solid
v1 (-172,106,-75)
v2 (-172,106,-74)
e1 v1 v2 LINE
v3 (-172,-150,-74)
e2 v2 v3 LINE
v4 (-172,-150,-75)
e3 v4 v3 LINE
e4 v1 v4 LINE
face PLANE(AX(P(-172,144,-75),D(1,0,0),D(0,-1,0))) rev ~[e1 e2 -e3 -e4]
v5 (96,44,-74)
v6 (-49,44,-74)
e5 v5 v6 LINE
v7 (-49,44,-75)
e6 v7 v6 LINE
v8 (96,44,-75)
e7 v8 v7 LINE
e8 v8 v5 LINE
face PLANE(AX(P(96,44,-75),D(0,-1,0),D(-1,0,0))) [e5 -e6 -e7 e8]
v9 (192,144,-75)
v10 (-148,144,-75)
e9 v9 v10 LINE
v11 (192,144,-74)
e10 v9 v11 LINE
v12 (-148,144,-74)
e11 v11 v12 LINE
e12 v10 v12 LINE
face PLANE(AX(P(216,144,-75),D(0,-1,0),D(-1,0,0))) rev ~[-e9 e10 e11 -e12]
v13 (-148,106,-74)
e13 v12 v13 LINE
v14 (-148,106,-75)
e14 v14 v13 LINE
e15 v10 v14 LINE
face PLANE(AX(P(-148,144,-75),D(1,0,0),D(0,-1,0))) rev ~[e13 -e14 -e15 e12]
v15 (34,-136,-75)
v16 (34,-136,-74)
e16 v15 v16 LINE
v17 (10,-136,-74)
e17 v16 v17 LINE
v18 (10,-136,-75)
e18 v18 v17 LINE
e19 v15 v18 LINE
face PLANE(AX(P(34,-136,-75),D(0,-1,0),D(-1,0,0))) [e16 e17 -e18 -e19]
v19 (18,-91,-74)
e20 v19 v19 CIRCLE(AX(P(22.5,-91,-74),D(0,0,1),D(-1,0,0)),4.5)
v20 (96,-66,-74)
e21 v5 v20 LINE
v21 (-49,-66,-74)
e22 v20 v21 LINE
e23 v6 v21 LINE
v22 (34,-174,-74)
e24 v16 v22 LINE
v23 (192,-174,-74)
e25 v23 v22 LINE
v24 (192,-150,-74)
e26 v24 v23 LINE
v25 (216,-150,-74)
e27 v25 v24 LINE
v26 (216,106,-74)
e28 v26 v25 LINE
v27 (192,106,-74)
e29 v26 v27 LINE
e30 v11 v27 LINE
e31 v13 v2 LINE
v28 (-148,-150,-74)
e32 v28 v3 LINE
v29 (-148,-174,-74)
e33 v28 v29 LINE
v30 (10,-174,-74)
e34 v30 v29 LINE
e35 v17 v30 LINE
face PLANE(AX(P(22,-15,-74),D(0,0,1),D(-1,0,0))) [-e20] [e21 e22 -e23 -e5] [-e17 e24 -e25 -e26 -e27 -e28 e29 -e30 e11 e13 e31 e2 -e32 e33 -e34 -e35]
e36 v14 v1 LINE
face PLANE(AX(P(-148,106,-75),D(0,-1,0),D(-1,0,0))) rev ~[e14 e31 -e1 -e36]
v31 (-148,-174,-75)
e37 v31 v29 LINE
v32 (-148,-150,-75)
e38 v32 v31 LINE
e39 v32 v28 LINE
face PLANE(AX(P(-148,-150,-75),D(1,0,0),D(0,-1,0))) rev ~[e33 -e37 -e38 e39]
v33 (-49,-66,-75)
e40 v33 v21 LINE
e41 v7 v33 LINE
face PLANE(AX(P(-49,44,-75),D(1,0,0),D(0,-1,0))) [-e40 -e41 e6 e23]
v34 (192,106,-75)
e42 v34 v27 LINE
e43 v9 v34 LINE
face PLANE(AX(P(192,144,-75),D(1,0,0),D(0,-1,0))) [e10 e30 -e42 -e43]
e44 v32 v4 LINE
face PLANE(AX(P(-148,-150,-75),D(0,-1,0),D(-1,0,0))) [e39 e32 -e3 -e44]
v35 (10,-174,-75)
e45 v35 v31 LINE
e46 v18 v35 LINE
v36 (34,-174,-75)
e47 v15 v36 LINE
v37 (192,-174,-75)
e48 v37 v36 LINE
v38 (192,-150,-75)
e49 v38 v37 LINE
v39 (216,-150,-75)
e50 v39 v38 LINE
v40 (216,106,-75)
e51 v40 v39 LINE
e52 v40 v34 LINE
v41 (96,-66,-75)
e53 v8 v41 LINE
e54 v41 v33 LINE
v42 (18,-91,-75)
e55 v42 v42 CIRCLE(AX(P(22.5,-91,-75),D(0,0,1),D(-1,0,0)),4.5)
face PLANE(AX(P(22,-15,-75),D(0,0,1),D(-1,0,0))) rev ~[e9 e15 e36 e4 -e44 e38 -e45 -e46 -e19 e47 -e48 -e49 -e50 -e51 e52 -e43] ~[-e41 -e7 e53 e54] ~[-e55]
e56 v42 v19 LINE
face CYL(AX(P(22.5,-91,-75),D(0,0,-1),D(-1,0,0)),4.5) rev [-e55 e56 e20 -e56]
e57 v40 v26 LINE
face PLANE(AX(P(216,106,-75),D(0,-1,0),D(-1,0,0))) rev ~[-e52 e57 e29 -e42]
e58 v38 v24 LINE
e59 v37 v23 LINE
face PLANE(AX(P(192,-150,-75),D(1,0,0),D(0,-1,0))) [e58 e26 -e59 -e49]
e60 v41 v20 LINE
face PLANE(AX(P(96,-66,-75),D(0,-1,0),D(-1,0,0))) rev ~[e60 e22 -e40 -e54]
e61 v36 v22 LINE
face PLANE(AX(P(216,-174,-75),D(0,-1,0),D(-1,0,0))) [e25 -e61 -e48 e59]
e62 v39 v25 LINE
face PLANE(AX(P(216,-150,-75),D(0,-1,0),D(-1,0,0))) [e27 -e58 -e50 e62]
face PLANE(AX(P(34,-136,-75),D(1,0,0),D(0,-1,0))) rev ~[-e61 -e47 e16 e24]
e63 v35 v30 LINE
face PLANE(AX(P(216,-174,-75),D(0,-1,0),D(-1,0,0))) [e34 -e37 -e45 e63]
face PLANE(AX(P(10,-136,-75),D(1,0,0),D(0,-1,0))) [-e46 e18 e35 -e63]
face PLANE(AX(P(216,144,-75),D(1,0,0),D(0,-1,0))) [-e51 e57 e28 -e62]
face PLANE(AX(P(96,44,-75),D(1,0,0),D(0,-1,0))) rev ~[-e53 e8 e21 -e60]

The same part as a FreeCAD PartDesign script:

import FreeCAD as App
import Part
import Sketcher

V = App.Vector


def add_polygon(sketch, points):
    """Adds a closed chain of lines whose ends are joined by coincident constraints."""
    first, n = sketch.GeometryCount, len(points)
    for a, b in zip(points, points[1:] + points[:1]):
        sketch.addGeometry(Part.LineSegment(App.Vector(*a, 0), App.Vector(*b, 0)), False)
    for i in range(n):
        sketch.addConstraint(Sketcher.Constraint("Coincident", first + i, 2, first + (i + 1) % n, 1))

doc = App.newDocument("Part")
body = doc.addObject("PartDesign::Body", "Body")

# Sketch on XY plane
sketch1 = body.newObject("Sketcher::SketchObject", "Sketch")
sketch1.AttachmentSupport = (doc.getObject("XY_Plane"), [""])
sketch1.MapMode = "FlatFace"
add_polygon(sketch1, [(120, 210), (120, 100), (265, 100), (265, 210)])  # lines 0-3
sketch1.addConstraint(Sketcher.Constraint("Vertical", 0))
sketch1.addConstraint(Sketcher.Constraint("Horizontal", 1))
sketch1.addConstraint(Sketcher.Constraint("Vertical", 2))
sketch1.addConstraint(Sketcher.Constraint("Horizontal", 3))
sketch1.addConstraint(Sketcher.Constraint("DistanceX", 1, 1, 1, 2, 145.0))
sketch1.addConstraint(Sketcher.Constraint("DistanceY", 0, 2, 0, 1, 110.0))
sketch1.addConstraint(Sketcher.Constraint("DistanceX", -1, 1, 0, 2, 120.0))
sketch1.addConstraint(Sketcher.Constraint("DistanceY", -1, 1, 0, 2, 100.0))
pad1 = body.newObject("PartDesign::Pad", "Pad")
pad1.Profile = sketch1
pad1.Length = 1
body2 = doc.addObject("PartDesign::Body", "Body001")

# Sketch on XY plane
sketch2 = body2.newObject("Sketcher::SketchObject", "Sketch001")
sketch2.AttachmentSupport = (doc.getObject("XY_Plane001"), [""])
sketch2.MapMode = "FlatFace"
add_polygon(sketch2, [(182, 318), (182, 280), (206, 280), (206, 318)])  # lines 0-3
sketch2.addConstraint(Sketcher.Constraint("Vertical", 0))
sketch2.addConstraint(Sketcher.Constraint("Horizontal", 1))
sketch2.addConstraint(Sketcher.Constraint("Vertical", 2))
sketch2.addConstraint(Sketcher.Constraint("Horizontal", 3))
sketch2.addConstraint(Sketcher.Constraint("DistanceX", 1, 1, 1, 2, 24.0))
sketch2.addConstraint(Sketcher.Constraint("DistanceY", 0, 2, 0, 1, 38.0))
sketch2.addConstraint(Sketcher.Constraint("DistanceX", -1, 1, 0, 2, 182.0))
sketch2.addConstraint(Sketcher.Constraint("DistanceY", -1, 1, 0, 2, 280.0))
pad2 = body2.newObject("PartDesign::Pad", "Pad001")
pad2.Profile = sketch2
pad2.Length = 1
body3 = doc.addObject("PartDesign::Body", "Body002")

# Sketch on XY plane
sketch3 = body3.newObject("Sketcher::SketchObject", "Sketch002")
sketch3.AttachmentSupport = (doc.getObject("XY_Plane002"), [""])
sketch3.MapMode = "FlatFace"
sketch3.addGeometry(Part.Circle(V(193.5, 235, 0), V(0, 0, 1), 4.5), False)
sketch3.addConstraint(Sketcher.Constraint("Diameter", 0, 9.0))
sketch3.addConstraint(Sketcher.Constraint("DistanceY", -1, 1, 0, 3, 235.0))
sketch3.addConstraint(Sketcher.Constraint("DistanceX", -1, 1, 0, 3, 193.5))
pad3 = body3.newObject("PartDesign::Pad", "Pad002")
pad3.Profile = sketch3
pad3.Length = 1
body4 = doc.addObject("PartDesign::Body", "Body003")

# Sketch on XY plane
sketch4 = body4.newObject("Sketcher::SketchObject", "Sketch003")
sketch4.AttachmentSupport = (doc.getObject("XY_Plane003"), [""])
sketch4.MapMode = "FlatFace"
add_polygon(sketch4, [(364, 38), (364, 0), (388, 0), (388, 38)])  # lines 0-3
sketch4.addConstraint(Sketcher.Constraint("Vertical", 0))
sketch4.addConstraint(Sketcher.Constraint("Horizontal", 1))
sketch4.addConstraint(Sketcher.Constraint("Vertical", 2))
sketch4.addConstraint(Sketcher.Constraint("Horizontal", 3))
sketch4.addConstraint(Sketcher.Constraint("PointOnObject", 0, 2, -1))
sketch4.addConstraint(Sketcher.Constraint("DistanceX", 1, 1, 1, 2, 24.0))
sketch4.addConstraint(Sketcher.Constraint("DistanceY", 0, 2, 0, 1, 38.0))
sketch4.addConstraint(Sketcher.Constraint("DistanceX", -1, 1, 0, 2, 364.0))
pad4 = body4.newObject("PartDesign::Pad", "Pad003")
pad4.Profile = sketch4
pad4.Length = 1
body5 = doc.addObject("PartDesign::Body", "Body004")

# Sketch on XY plane
sketch5 = body5.newObject("Sketcher::SketchObject", "Sketch004")
sketch5.AttachmentSupport = (doc.getObject("XY_Plane004"), [""])
sketch5.MapMode = "FlatFace"
add_polygon(sketch5, [(0, 318), (0, 294), (24, 294), (24, 318)])  # lines 0-3
sketch5.addConstraint(Sketcher.Constraint("Vertical", 0))
sketch5.addConstraint(Sketcher.Constraint("Horizontal", 1))
sketch5.addConstraint(Sketcher.Constraint("Vertical", 2))
sketch5.addConstraint(Sketcher.Constraint("Horizontal", 3))
sketch5.addConstraint(Sketcher.Constraint("PointOnObject", 0, 2, -2))
sketch5.addConstraint(Sketcher.Constraint("Equal", 3, 0))
sketch5.addConstraint(Sketcher.Constraint("DistanceX", 1, 1, 1, 2, 24.0))
sketch5.addConstraint(Sketcher.Constraint("DistanceY", -1, 1, 0, 2, 294.0))
pad5 = body5.newObject("PartDesign::Pad", "Pad004")
pad5.Profile = sketch5
pad5.Length = 1
body6 = doc.addObject("PartDesign::Body", "Body005")

# Sketch on XY plane
sketch6 = body6.newObject("Sketcher::SketchObject", "Sketch005")
sketch6.AttachmentSupport = (doc.getObject("XY_Plane005"), [""])
sketch6.MapMode = "FlatFace"
add_polygon(sketch6, [(364, 318), (364, 294), (388, 294), (388, 318)])  # lines 0-3
sketch6.addConstraint(Sketcher.Constraint("Vertical", 0))
sketch6.addConstraint(Sketcher.Constraint("Horizontal", 1))
sketch6.addConstraint(Sketcher.Constraint("Vertical", 2))
sketch6.addConstraint(Sketcher.Constraint("Horizontal", 3))
sketch6.addConstraint(Sketcher.Constraint("Equal", 3, 0))
sketch6.addConstraint(Sketcher.Constraint("DistanceX", 1, 1, 1, 2, 24.0))
sketch6.addConstraint(Sketcher.Constraint("DistanceX", -1, 1, 0, 2, 364.0))
sketch6.addConstraint(Sketcher.Constraint("DistanceY", -1, 1, 0, 2, 294.0))
pad6 = body6.newObject("PartDesign::Pad", "Pad005")
pad6.Profile = sketch6
pad6.Length = 1
body7 = doc.addObject("PartDesign::Body", "Body006")
body7.AllowCompound = True

# Sketch on XY plane
sketch7 = body7.newObject("Sketcher::SketchObject", "Sketch006")
sketch7.AttachmentSupport = (doc.getObject("XY_Plane006"), [""])
sketch7.MapMode = "FlatFace"
add_polygon(sketch7, [(0, 38), (0, 0), (24, 0), (24, 38)])  # lines 0-3
sketch7.addConstraint(Sketcher.Constraint("Vertical", 0))
sketch7.addConstraint(Sketcher.Constraint("Horizontal", 1))
sketch7.addConstraint(Sketcher.Constraint("Vertical", 2))
sketch7.addConstraint(Sketcher.Constraint("Horizontal", 3))
sketch7.addConstraint(Sketcher.Constraint("Coincident", 0, 2, -1, 1))
sketch7.addConstraint(Sketcher.Constraint("DistanceX", 1, 1, 1, 2, 24.0))
sketch7.addConstraint(Sketcher.Constraint("DistanceY", 0, 2, 0, 1, 38.0))
pad7 = body7.newObject("PartDesign::Pad", "Pad006")
pad7.Profile = sketch7
pad7.Length = 1
doc.recompute()

boolean = body7.newObject("PartDesign::Boolean", "Boolean")
boolean.Type = "Fuse"
boolean.addObjects([body4])
doc.recompute()

boolean2 = body7.newObject("PartDesign::Boolean", "Boolean001")
boolean2.Type = "Fuse"
boolean2.addObjects([body5])
doc.recompute()

boolean3 = body7.newObject("PartDesign::Boolean", "Boolean002")
boolean3.Type = "Fuse"
boolean3.addObjects([body6])
doc.recompute()

boolean4 = body7.newObject("PartDesign::Boolean", "Boolean003")
boolean4.Type = "Fuse"
boolean4.addObjects([body])
doc.recompute()

boolean5 = body7.newObject("PartDesign::Boolean", "Boolean004")
boolean5.Type = "Fuse"
boolean5.addObjects([body2])
doc.recompute()

boolean6 = body7.newObject("PartDesign::Boolean", "Boolean005")
boolean6.Type = "Fuse"
boolean6.addObjects([body3])
body8 = doc.addObject("PartDesign::Body", "Body007")

# Sketch on XY plane
sketch8 = body8.newObject("Sketcher::SketchObject", "Sketch007")
sketch8.AttachmentSupport = (doc.getObject("XY_Plane007"), [""])
sketch8.MapMode = "FlatFace"
add_polygon(sketch8, [(0, 318), (0, 0), (388, 0), (388, 318)])  # lines 0-3
sketch8.addConstraint(Sketcher.Constraint("Vertical", 0))
sketch8.addConstraint(Sketcher.Constraint("Horizontal", 1))
sketch8.addConstraint(Sketcher.Constraint("Vertical", 2))
sketch8.addConstraint(Sketcher.Constraint("Horizontal", 3))
sketch8.addConstraint(Sketcher.Constraint("Coincident", 0, 2, -1, 1))
sketch8.addConstraint(Sketcher.Constraint("DistanceX", 1, 1, 1, 2, 388.0))
sketch8.addConstraint(Sketcher.Constraint("DistanceY", 0, 2, 0, 1, 318.0))
pad8 = body8.newObject("PartDesign::Pad", "Pad007")
pad8.Profile = sketch8
pad8.Length = 1
doc.recompute()

boolean7 = body8.newObject("PartDesign::Boolean", "Boolean006")
boolean7.Type = "Cut"
boolean7.addObjects([body7])
body9 = doc.addObject("PartDesign::Body", "Body008")
doc.recompute()

body8.Placement = App.Placement(V(216, 144, -75), App.Rotation(V(0, 0, 1), 180))
boolean8 = body9.newObject("PartDesign::Boolean", "Boolean007")
boolean8.Type = "Fuse"
boolean8.addObjects([body8])

doc.recompute()
